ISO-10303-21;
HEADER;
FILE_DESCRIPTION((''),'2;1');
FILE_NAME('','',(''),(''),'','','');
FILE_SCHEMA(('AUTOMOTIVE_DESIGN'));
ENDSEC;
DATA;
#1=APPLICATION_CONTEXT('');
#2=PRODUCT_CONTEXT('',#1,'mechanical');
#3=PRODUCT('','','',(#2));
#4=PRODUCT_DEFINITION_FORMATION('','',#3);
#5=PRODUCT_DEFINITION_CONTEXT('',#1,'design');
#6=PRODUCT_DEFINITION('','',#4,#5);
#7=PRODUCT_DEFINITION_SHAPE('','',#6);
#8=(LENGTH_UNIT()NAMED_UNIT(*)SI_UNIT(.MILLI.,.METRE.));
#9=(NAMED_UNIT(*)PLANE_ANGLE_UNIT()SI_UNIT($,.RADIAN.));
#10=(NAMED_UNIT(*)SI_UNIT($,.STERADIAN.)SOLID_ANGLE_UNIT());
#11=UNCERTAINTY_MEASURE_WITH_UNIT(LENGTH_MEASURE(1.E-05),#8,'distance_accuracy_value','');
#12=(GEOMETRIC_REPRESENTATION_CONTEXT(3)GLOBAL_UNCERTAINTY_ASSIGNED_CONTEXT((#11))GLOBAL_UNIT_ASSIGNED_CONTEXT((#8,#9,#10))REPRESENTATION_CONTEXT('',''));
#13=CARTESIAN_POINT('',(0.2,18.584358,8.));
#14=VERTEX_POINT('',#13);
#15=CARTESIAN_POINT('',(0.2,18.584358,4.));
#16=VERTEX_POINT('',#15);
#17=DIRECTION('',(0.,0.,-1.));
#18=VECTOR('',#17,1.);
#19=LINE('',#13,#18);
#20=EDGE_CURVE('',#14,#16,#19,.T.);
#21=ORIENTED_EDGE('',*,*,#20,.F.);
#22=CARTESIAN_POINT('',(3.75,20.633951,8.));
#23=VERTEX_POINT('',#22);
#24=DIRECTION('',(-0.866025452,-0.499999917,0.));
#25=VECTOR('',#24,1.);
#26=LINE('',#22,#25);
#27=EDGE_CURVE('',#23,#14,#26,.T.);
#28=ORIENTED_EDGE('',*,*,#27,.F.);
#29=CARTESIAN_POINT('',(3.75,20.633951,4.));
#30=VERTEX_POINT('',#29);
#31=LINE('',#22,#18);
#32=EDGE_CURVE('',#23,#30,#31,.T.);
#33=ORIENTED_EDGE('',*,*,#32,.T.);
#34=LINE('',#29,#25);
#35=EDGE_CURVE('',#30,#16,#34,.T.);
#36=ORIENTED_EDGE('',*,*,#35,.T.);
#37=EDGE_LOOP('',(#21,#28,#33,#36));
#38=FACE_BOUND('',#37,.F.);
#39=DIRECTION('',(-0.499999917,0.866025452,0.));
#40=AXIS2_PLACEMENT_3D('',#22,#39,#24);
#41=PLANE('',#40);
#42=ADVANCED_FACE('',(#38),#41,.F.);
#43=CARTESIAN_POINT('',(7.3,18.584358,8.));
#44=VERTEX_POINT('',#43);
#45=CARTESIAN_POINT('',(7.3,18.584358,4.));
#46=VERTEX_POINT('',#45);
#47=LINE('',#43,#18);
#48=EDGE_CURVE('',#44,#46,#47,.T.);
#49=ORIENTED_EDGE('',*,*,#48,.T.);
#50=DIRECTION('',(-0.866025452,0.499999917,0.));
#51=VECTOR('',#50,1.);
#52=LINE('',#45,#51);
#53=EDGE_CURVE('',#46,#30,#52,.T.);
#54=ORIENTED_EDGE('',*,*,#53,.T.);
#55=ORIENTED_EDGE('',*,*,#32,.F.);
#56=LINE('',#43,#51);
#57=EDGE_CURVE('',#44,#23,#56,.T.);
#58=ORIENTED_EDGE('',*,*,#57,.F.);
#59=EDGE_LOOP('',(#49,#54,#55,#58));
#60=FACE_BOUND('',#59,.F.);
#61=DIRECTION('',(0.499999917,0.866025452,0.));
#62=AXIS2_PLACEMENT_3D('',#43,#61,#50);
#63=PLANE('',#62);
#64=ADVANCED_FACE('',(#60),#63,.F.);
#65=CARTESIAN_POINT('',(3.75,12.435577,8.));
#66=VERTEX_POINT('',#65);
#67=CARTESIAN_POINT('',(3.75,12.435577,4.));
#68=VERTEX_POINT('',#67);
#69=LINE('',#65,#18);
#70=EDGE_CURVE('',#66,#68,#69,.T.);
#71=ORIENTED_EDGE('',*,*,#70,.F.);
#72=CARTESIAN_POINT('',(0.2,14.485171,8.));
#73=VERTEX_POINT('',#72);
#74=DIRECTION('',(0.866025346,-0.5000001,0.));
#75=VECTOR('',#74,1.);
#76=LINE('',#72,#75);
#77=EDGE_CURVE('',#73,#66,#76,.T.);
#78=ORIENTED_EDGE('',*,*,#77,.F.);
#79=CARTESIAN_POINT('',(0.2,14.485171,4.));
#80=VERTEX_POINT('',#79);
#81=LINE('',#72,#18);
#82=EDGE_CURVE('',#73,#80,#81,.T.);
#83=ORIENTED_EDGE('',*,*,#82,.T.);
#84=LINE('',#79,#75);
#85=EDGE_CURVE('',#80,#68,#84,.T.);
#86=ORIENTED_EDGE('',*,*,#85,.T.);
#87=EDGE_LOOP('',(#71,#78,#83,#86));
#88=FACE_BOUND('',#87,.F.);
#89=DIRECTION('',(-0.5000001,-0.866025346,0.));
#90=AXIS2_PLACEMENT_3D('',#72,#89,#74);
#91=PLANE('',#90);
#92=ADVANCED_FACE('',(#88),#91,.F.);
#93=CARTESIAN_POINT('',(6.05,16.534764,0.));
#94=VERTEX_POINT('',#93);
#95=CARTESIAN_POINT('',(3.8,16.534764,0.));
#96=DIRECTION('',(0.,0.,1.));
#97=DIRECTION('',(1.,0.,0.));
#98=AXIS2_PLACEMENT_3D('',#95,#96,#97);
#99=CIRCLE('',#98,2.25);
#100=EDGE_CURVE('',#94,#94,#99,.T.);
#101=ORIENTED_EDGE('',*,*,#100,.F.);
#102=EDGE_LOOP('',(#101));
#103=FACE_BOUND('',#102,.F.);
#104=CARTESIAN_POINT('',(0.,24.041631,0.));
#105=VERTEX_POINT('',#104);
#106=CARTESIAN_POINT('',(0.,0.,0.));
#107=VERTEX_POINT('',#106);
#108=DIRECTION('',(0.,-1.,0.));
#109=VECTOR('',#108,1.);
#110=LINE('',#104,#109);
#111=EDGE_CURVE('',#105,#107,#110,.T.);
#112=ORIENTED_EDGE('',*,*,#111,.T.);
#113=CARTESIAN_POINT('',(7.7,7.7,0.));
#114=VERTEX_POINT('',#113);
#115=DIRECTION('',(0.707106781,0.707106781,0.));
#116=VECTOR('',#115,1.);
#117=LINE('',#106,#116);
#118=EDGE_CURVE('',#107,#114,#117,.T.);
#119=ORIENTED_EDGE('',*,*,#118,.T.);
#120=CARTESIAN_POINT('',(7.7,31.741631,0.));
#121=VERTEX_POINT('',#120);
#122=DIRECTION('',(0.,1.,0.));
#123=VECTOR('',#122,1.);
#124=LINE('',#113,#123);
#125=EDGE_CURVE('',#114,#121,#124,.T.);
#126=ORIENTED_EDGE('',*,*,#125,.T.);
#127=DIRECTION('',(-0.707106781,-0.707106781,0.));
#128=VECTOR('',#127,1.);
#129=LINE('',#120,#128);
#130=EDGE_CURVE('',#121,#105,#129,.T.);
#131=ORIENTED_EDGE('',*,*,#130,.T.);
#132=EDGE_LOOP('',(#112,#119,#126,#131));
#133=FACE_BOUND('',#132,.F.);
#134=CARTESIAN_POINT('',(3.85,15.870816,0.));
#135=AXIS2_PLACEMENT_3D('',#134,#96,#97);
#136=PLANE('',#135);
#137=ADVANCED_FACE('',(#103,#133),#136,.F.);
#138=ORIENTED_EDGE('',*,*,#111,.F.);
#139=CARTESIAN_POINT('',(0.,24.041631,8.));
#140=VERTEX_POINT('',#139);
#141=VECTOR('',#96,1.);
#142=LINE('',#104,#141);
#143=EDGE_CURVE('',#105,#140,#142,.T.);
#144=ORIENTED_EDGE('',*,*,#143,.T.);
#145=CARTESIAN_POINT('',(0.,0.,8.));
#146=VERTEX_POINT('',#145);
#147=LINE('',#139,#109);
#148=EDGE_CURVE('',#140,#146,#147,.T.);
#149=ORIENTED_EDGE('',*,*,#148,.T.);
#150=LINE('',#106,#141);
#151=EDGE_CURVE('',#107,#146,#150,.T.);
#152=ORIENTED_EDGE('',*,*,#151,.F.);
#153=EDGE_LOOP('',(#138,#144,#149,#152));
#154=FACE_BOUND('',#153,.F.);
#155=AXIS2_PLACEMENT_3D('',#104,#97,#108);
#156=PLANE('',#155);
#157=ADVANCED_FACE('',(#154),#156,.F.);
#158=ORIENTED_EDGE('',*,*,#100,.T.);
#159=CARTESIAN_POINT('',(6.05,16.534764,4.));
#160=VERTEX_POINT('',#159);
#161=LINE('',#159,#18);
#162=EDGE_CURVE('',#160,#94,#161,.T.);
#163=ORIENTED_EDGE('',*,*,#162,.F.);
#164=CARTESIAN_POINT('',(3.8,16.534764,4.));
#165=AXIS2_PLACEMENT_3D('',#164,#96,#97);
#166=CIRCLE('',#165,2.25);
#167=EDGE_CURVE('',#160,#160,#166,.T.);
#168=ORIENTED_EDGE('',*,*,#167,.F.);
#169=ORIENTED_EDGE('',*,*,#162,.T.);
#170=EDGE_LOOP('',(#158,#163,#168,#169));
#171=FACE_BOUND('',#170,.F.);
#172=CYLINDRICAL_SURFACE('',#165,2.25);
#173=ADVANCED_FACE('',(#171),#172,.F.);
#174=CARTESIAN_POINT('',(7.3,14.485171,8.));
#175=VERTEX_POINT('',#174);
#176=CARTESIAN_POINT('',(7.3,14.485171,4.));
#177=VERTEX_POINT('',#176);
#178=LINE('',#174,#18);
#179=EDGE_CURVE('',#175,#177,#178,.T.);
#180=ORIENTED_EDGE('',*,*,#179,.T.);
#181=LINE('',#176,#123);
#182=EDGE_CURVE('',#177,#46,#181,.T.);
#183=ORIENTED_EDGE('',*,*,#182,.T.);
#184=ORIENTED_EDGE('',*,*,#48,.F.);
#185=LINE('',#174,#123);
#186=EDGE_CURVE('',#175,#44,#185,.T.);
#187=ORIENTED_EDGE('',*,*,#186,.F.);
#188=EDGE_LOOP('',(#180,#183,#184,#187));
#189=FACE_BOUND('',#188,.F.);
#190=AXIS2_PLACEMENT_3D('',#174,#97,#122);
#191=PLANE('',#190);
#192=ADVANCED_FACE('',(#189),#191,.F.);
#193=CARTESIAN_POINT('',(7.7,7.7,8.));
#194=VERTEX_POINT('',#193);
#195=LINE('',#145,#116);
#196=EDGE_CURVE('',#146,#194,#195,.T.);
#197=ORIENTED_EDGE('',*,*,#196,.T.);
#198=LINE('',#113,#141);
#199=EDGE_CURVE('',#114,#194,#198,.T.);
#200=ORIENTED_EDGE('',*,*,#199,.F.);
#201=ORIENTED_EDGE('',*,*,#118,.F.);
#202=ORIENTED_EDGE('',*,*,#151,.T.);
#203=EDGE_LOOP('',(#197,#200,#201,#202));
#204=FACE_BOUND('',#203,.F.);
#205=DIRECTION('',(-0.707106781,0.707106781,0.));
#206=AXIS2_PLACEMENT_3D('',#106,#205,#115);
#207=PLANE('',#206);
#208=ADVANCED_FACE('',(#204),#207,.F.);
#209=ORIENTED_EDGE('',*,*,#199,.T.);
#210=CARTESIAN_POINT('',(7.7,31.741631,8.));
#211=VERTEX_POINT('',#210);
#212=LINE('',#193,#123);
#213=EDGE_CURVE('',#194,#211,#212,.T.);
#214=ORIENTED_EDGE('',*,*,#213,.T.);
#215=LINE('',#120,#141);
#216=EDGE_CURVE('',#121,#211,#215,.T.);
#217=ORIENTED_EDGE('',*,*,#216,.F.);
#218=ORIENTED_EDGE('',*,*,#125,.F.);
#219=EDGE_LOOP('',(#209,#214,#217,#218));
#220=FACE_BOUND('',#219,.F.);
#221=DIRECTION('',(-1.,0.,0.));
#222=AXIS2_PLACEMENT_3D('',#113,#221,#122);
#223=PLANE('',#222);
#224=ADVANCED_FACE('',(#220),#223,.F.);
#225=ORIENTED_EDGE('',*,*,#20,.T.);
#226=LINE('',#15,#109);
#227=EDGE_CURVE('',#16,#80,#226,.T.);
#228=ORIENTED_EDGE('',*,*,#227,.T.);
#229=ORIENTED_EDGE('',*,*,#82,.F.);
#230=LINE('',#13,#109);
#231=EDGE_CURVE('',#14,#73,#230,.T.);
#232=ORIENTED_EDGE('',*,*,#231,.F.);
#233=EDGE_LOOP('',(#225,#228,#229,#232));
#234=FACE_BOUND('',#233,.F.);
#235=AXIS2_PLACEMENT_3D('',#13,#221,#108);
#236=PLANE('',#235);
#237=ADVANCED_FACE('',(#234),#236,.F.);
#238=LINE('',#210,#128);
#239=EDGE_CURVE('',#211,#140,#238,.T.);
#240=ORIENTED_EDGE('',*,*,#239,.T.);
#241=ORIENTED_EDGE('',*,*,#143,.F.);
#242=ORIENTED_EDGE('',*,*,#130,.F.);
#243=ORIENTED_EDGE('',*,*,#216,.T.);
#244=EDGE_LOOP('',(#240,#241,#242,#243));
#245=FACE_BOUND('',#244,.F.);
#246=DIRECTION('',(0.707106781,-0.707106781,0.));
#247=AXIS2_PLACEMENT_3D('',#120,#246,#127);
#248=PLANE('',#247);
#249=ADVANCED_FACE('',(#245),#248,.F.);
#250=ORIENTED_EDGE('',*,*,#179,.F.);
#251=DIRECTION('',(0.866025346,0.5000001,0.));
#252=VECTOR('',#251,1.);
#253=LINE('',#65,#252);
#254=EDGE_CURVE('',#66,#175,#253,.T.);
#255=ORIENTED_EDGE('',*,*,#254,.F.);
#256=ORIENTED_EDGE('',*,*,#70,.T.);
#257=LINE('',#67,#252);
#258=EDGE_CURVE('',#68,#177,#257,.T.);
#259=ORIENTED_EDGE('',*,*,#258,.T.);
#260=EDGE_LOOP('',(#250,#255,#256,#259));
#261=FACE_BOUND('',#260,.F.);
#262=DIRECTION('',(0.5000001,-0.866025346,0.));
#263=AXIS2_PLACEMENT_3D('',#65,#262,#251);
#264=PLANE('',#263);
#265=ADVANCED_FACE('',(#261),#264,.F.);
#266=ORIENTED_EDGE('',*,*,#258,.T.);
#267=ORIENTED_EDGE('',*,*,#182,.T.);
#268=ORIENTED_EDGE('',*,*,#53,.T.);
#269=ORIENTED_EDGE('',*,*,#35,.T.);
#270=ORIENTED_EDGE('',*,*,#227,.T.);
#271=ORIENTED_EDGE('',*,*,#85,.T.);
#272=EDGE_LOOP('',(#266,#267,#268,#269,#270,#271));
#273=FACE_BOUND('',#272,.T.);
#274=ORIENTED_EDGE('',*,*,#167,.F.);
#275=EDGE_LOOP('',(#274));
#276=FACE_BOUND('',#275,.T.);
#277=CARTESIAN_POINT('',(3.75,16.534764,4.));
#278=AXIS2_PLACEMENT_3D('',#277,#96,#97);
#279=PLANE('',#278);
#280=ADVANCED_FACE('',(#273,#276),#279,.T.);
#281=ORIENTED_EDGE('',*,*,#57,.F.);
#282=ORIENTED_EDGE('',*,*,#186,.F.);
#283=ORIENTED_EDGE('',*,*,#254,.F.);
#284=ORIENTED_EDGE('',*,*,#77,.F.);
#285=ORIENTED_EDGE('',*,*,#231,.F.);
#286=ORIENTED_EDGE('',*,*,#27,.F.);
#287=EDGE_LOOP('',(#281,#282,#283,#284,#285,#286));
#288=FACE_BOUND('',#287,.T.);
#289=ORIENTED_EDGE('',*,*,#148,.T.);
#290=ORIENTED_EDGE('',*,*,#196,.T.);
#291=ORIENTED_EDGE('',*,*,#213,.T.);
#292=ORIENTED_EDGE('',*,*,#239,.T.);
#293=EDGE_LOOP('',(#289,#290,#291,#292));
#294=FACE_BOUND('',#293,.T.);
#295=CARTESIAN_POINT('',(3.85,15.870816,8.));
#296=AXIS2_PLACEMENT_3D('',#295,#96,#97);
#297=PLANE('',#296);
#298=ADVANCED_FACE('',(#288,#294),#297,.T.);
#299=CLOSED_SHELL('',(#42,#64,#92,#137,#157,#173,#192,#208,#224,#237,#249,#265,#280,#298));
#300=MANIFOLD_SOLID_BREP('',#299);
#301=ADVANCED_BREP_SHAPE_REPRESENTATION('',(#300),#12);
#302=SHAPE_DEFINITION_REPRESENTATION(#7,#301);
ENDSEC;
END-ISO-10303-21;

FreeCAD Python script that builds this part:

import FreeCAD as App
import Part
import Sketcher

V = App.Vector
Q = App.Units.Quantity

doc = App.newDocument("Part")
params = doc.addObject("Spreadsheet::Sheet", "Params")
for row, (alias, value) in enumerate([
    ("pad1_length", "8 mm"),
    ("pocket1_length", "4 mm"),
    ("sketch3_diameter", "4.5 mm"),
    ("pocket2_length", "25 mm"),
], start=1):
    params.set(f"A{row}", alias)
    params.set(f"B{row}", "=" + value)
    params.setAlias(f"B{row}", alias)

body = doc.addObject("PartDesign::Body", "Body")

sketch1 = body.newObject("Sketcher::SketchObject", "Sketch")
sketch1.AttachmentSupport = (doc.getObject("XY_Plane"), [""])
sketch1.MapMode = "FlatFace"
sketch1.addGeometry([
    Part.LineSegment(V(0, 24, 0), V(0, 0, 0)),
    Part.LineSegment(V(0, 0, 0), V(8, 8, 0)),
    Part.LineSegment(V(8, 8, 0), V(8, 32, 0)),
    Part.LineSegment(V(8, 32, 0), V(0, 24, 0)),
], False)
sketch1.addConstraint([
    Sketcher.Constraint("Coincident", 0, 2, 1, 1),
    Sketcher.Constraint("Coincident", 1, 2, 2, 1),
    Sketcher.Constraint("Coincident", 2, 2, 3, 1),
    Sketcher.Constraint("Coincident", 3, 2, 0, 1),
    Sketcher.Constraint("Vertical", 0),
    Sketcher.Constraint("Vertical", 2),
    Sketcher.Constraint("Coincident", 0, 2, -1, 1),
    Sketcher.Constraint("Parallel", 1, 3),
    Sketcher.Constraint("Angle", 1, Q("45 deg")),
    Sketcher.Constraint("DistanceX", -1, 1, 1, 2, Q("7.7 mm")),
    Sketcher.Constraint("DistanceY", 0, 2, 0, 1, Q("24.041631 mm")),
])
pad1 = body.newObject("PartDesign::Pad", "Pad")
pad1.Profile = sketch1
pad1.setExpression("Length", "Params.pad1_length")

sketch2 = body.newObject("Sketcher::SketchObject", "Sketch001")
sketch2.AttachmentSupport = (doc.getObject("XY_Plane"), [""])
sketch2.MapMode = "FlatFace"
sketch2.AttachmentOffset = App.Placement(V(0, 0, 8), App.Rotation())
sketch2.addGeometry([
    Part.LineSegment(V(3.8, 12.4, 0), V(7.3, 14.5, 0)),
    Part.LineSegment(V(7.3, 14.5, 0), V(7.3, 18.6, 0)),
    Part.LineSegment(V(7.3, 18.6, 0), V(3.8, 20.6, 0)),
    Part.LineSegment(V(3.8, 20.6, 0), V(0.2, 18.6, 0)),
    Part.LineSegment(V(0.2, 18.6, 0), V(0.2, 14.5, 0)),
    Part.LineSegment(V(0.2, 14.5, 0), V(3.8, 12.4, 0)),
], False)
sketch2.addConstraint([
    Sketcher.Constraint("Coincident", 0, 2, 1, 1),
    Sketcher.Constraint("Coincident", 1, 2, 2, 1),
    Sketcher.Constraint("Coincident", 2, 2, 3, 1),
    Sketcher.Constraint("Coincident", 3, 2, 4, 1),
    Sketcher.Constraint("Coincident", 4, 2, 5, 1),
    Sketcher.Constraint("Coincident", 5, 2, 0, 1),
    Sketcher.Constraint("Vertical", 1),
    Sketcher.Constraint("Vertical", 4),
    Sketcher.Constraint("Parallel", 0, 3),
    Sketcher.Constraint("Parallel", 2, 5),
    Sketcher.Constraint("Horizontal", 1, 2, 3, 2),
    Sketcher.Constraint("Horizontal", 0, 2, 4, 2),
    Sketcher.Constraint("Vertical", 2, 2, 5, 2),
    Sketcher.Constraint("Angle", 0, Q("30.000007 deg")),
    Sketcher.Constraint("DistanceX", -1, 1, 0, 2, Q("7.3 mm")),
    Sketcher.Constraint("DistanceX", -1, 1, 3, 2, Q("0.2 mm")),
    Sketcher.Constraint("DistanceY", 1, 1, 1, 2, Q("4.099187 mm")),
    Sketcher.Constraint("DistanceY", -1, 1, 0, 2, Q("14.485171 mm")),
])
pocket1 = body.newObject("PartDesign::Pocket", "Pocket")
pocket1.Profile = sketch2
pocket1.setExpression("Length", "Params.pocket1_length")

sketch3 = body.newObject("Sketcher::SketchObject", "Sketch002")
sketch3.AttachmentSupport = (doc.getObject("XY_Plane"), [""])
sketch3.MapMode = "FlatFace"
sketch3.AttachmentOffset = App.Placement(V(0, 0, 4), App.Rotation())
sketch3.addGeometry(Part.Circle(V(3.8, 16.5, 0), V(0, 0, 1), 2.2), False)
sketch3.addConstraint([
    Sketcher.Constraint("Diameter", 0, Q("4.5 mm")),
    Sketcher.Constraint("DistanceX", -1, 1, 0, 3, Q("3.8 mm")),
    Sketcher.Constraint("DistanceY", -1, 1, 0, 3, Q("16.534764 mm")),
])
sketch3.setExpression("Constraints[0]", "Params.sketch3_diameter")
pocket2 = body.newObject("PartDesign::Pocket", "Pocket001")
pocket2.Profile = sketch3
pocket2.setExpression("Length", "Params.pocket2_length")

doc.recompute()
